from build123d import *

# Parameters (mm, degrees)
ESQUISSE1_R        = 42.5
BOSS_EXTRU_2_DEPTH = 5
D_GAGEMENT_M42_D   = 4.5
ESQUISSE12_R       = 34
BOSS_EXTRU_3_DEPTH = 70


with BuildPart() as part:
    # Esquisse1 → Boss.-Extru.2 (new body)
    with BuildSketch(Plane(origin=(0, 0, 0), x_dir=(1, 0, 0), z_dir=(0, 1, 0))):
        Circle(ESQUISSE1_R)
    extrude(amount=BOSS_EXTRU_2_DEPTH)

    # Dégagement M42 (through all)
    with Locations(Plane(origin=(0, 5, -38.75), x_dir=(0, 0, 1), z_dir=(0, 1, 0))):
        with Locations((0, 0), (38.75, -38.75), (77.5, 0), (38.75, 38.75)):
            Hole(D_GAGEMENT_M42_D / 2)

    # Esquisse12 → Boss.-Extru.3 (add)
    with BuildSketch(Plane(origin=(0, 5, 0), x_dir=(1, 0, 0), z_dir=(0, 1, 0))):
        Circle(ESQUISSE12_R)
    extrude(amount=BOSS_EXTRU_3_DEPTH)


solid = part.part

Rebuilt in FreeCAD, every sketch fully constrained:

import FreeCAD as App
import Part
import Sketcher
from FreeCAD import Vector
Q = App.Units.Quantity

doc = App.newDocument("Part")
body = doc.addObject("PartDesign::Body", "Body")

sketch1 = body.newObject("Sketcher::SketchObject", "Sketch")
sketch1.AttachmentSupport = (doc.getObject("XZ_Plane"), [""])
sketch1.MapMode = "FlatFace"
sketch1.addGeometry(Part.Circle(Vector(0, 0, 0), Vector(0, 0, 1), 42.5), False)
sketch1.addConstraint(Sketcher.Constraint("Coincident", 0, 3, -1, 1))
sketch1.addConstraint(Sketcher.Constraint("Diameter", 0, Q("85 mm")))
pad1 = body.newObject("PartDesign::Pad", "Pad")
pad1.Profile = sketch1
pad1.Length = 5
pad1.Reversed = True

sketch2 = body.newObject("Sketcher::SketchObject", "Sketch001")
sketch2.AttachmentSupport = (doc.getObject("XZ_Plane"), [""])
sketch2.MapMode = "FlatFace"
sketch2.AttachmentOffset = App.Placement(Vector(0, 0, -5), App.Rotation())
sketch2.addGeometry(Part.Circle(Vector(0, -38.75, 0), Vector(0, 0, 1), 2.25), False)
sketch2.addGeometry(Part.Circle(Vector(-38.75, 0, 0), Vector(0, 0, 1), 2.25), False)
sketch2.addGeometry(Part.Circle(Vector(0, 38.75, 0), Vector(0, 0, 1), 2.25), False)
sketch2.addGeometry(Part.Circle(Vector(38.75, 0, 0), Vector(0, 0, 1), 2.25), False)
sketch2.addConstraint(Sketcher.Constraint("Equal", 0, 1))
sketch2.addConstraint(Sketcher.Constraint("Equal", 1, 2))
sketch2.addConstraint(Sketcher.Constraint("Equal", 2, 3))
sketch2.addConstraint(Sketcher.Constraint("Symmetric", 0, 3, 2, 3, -1, 1))
sketch2.addConstraint(Sketcher.Constraint("Symmetric", 1, 3, 3, 3, -1, 1))
sketch2.addConstraint(Sketcher.Constraint("PointOnObject", 0, 3, -2))
sketch2.addConstraint(Sketcher.Constraint("PointOnObject", 1, 3, -1))
sketch2.addConstraint(Sketcher.Constraint("Diameter", 0, Q("4.5 mm")))
sketch2.addConstraint(Sketcher.Constraint("DistanceY", 0, 3, 2, 3, Q("77.5 mm")))
sketch2.addConstraint(Sketcher.Constraint("DistanceX", 1, 3, 3, 3, Q("77.5 mm")))
doc.recompute()
hole = body.newObject("PartDesign::Hole", "Hole")
hole.Profile = sketch2
hole.ThreadType = "None"
hole.Diameter = 4.5
hole.DepthType = "ThroughAll"
hole.Reversed = True

sketch3 = body.newObject("Sketcher::SketchObject", "Sketch002")
sketch3.AttachmentSupport = (doc.getObject("XZ_Plane"), [""])
sketch3.MapMode = "FlatFace"
sketch3.AttachmentOffset = App.Placement(Vector(0, 0, -5), App.Rotation())
sketch3.addGeometry(Part.Circle(Vector(0, 0, 0), Vector(0, 0, 1), 34), False)
sketch3.addConstraint(Sketcher.Constraint("Coincident", 0, 3, -1, 1))
sketch3.addConstraint(Sketcher.Constraint("Diameter", 0, Q("68 mm")))
pad2 = body.newObject("PartDesign::Pad", "Pad001")
pad2.Profile = sketch3
pad2.Length = 70
pad2.Reversed = True

doc.recompute()
